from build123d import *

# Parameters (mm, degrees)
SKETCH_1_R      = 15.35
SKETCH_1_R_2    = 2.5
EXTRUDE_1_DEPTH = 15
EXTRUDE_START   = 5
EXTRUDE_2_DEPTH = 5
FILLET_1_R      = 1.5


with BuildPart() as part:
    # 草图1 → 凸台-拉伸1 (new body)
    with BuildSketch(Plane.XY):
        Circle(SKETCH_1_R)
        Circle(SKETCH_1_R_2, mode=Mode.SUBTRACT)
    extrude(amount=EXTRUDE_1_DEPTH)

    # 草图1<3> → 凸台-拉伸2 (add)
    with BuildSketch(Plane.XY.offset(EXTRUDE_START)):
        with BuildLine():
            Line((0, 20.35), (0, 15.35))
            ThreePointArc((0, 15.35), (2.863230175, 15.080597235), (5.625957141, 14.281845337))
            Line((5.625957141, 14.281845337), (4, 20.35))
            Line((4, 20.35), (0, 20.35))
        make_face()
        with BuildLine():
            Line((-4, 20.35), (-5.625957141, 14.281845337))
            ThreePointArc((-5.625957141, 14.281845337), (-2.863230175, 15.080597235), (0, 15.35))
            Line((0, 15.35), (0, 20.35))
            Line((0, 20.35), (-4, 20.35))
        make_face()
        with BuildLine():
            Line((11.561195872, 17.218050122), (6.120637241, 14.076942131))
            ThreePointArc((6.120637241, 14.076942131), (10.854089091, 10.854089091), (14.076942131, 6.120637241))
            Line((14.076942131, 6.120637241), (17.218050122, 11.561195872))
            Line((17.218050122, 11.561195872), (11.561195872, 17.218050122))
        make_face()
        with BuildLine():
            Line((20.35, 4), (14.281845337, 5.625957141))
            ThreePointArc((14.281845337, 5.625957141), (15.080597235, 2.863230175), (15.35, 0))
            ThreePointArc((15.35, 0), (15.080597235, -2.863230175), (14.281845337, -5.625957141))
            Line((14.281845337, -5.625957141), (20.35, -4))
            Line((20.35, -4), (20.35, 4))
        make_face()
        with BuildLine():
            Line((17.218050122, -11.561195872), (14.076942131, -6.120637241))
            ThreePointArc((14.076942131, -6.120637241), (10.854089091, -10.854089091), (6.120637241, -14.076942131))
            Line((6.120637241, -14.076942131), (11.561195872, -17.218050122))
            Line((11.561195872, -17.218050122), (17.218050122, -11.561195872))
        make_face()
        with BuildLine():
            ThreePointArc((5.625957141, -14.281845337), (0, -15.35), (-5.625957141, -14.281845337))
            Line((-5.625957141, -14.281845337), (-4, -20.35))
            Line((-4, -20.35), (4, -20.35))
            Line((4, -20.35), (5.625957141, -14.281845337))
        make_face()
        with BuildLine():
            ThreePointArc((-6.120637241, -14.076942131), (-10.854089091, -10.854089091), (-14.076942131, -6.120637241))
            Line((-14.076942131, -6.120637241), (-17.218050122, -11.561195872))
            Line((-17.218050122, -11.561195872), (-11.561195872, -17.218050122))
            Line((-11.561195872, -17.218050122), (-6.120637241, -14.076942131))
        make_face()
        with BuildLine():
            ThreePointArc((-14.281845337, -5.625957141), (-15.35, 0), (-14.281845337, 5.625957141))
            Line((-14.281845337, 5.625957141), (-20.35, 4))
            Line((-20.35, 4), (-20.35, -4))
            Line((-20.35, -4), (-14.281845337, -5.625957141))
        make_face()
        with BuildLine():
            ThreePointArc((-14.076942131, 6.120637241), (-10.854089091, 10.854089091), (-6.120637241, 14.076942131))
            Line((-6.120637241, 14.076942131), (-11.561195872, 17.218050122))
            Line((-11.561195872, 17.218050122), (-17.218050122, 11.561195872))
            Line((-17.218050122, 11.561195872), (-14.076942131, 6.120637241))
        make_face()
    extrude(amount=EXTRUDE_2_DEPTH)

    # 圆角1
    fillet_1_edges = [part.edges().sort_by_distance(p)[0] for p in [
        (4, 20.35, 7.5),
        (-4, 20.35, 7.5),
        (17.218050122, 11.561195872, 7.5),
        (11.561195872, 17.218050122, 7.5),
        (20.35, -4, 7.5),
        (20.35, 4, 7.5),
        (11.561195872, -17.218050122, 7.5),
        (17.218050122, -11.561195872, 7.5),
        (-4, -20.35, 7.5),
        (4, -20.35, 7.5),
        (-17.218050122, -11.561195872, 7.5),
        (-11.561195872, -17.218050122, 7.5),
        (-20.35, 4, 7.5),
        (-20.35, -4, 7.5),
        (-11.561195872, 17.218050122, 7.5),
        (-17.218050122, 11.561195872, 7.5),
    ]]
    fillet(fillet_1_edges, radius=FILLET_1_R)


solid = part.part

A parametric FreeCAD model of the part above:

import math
import FreeCAD as App
import Part
import Sketcher

V = App.Vector
Q = App.Units.Quantity


def edges_at(feature, points):
    """Names of the edges that pass closest to the given points."""
    edges = feature.Shape.Edges
    near = lambda p: min(range(len(edges)), key=lambda i: edges[i].distToShape(Part.Vertex(*p))[0])
    return sorted({f"Edge{near(p) + 1}" for p in points})

doc = App.newDocument("Part")
params = doc.addObject("Spreadsheet::Sheet", "Params")
for row, (alias, value) in enumerate([
    ("sketch1_diameter", "5 mm"),
    ("sketch1_diameter2", "30.7 mm"),
    ("pad1_length", "15 mm"),
    ("sketch2_width", "8 mm"),
    ("sketch2_radius", "15.35 mm"),
    ("sketch2_length", "8 mm"),
    ("pad2_length", "5 mm"),
    ("fillet_radius", "1.5 mm"),
], start=1):
    params.set(f"A{row}", alias)
    params.set(f"B{row}", "=" + value)
    params.setAlias(f"B{row}", alias)

body = doc.addObject("PartDesign::Body", "Body")

# Sketch on XY plane
sketch1 = body.newObject("Sketcher::SketchObject", "Sketch")
sketch1.AttachmentSupport = (doc.getObject("XY_Plane"), [""])
sketch1.MapMode = "FlatFace"
sketch1.addGeometry([
    Part.Circle(V(0, 0, 0), V(0, 0, 1), 15.3),
    Part.Circle(V(0, 0, 0), V(0, 0, 1), 2.5),
], False)
sketch1.addConstraint([
    Sketcher.Constraint("Coincident", 0, 3, -1, 1),
    Sketcher.Constraint("Coincident", 1, 3, -1, 1),
    Sketcher.Constraint("Diameter", 1, 5.0),
    Sketcher.Constraint("Diameter", 0, 30.7),
])
sketch1.setExpression("Constraints[2]", "Params.sketch1_diameter")
sketch1.setExpression("Constraints[3]", "Params.sketch1_diameter2")
pad1 = body.newObject("PartDesign::Pad", "Pad")
pad1.Profile = sketch1
pad1.setExpression("Length", "Params.pad1_length")

# Sketch on XY plane
sketch2 = body.newObject("Sketcher::SketchObject", "Sketch001")
sketch2.AttachmentSupport = (doc.getObject("XY_Plane"), [""])
sketch2.MapMode = "FlatFace"
sketch2.AttachmentOffset = App.Placement(V(0, 0, 5), App.Rotation())
sketch2.addGeometry([
    Part.ArcOfCircle(Part.Circle(V(0, 0, 0), V(0, 0, 1), 15), math.radians(68), math.radians(90)),  # 0
    Part.LineSegment(V(6, 14, 0), V(4, 20, 0)),  # 1
    Part.LineSegment(V(4, 20, 0), V(-4, 20, 0)),  # 2
    Part.LineSegment(V(-4, 20, 0), V(-6, 14, 0)),  # 3
    Part.ArcOfCircle(Part.Circle(V(0, 0, 0), V(0, 0, 1), 15), math.radians(90), math.radians(112)),  # 4
    Part.LineSegment(V(12, 17, 0), V(6, 14, 0)),  # 5
    Part.ArcOfCircle(Part.Circle(V(0, 0, 0), V(0, 0, 1), 15), math.radians(23), math.radians(67)),  # 6
    Part.LineSegment(V(14, 6, 0), V(17, 12, 0)),  # 7
    Part.LineSegment(V(17, 12, 0), V(12, 17, 0)),  # 8
    Part.LineSegment(V(20, 4, 0), V(14, 6, 0)),  # 9
    Part.ArcOfCircle(Part.Circle(V(0, 0, 0), V(0, 0, 1), 15), math.radians(0), math.radians(22)),  # 10
    Part.ArcOfCircle(Part.Circle(V(0, 0, 0), V(0, 0, 1), 15), math.radians(-22), math.radians(0)),  # 11
    Part.LineSegment(V(14, -6, 0), V(20, -4, 0)),  # 12
    Part.LineSegment(V(20, -4, 0), V(20, 4, 0)),  # 13
    Part.LineSegment(V(17, -12, 0), V(14, -6, 0)),  # 14
    Part.ArcOfCircle(Part.Circle(V(0, 0, 0), V(0, 0, 1), 15), math.radians(-67), math.radians(-23)),  # 15
    Part.LineSegment(V(6, -14, 0), V(12, -17, 0)),  # 16
    Part.LineSegment(V(12, -17, 0), V(17, -12, 0)),  # 17
    Part.ArcOfCircle(Part.Circle(V(0, 0, 0), V(0, 0, 1), 15), math.radians(-112), math.radians(-68)),  # 18
    Part.LineSegment(V(-6, -14, 0), V(-4, -20, 0)),  # 19
    Part.LineSegment(V(-4, -20, 0), V(4, -20, 0)),  # 20
    Part.LineSegment(V(4, -20, 0), V(6, -14, 0)),  # 21
    Part.ArcOfCircle(Part.Circle(V(0, 0, 0), V(0, 0, 1), 15), math.radians(-157), math.radians(-113)),  # 22
    Part.LineSegment(V(-14, -6, 0), V(-17, -12, 0)),  # 23
    Part.LineSegment(V(-17, -12, 0), V(-12, -17, 0)),  # 24
    Part.LineSegment(V(-12, -17, 0), V(-6, -14, 0)),  # 25
    Part.ArcOfCircle(Part.Circle(V(0, 0, 0), V(0, 0, 1), 15), math.radians(158), math.radians(202)),  # 26
    Part.LineSegment(V(-14, 6, 0), V(-20, 4, 0)),  # 27
    Part.LineSegment(V(-20, 4, 0), V(-20, -4, 0)),  # 28
    Part.LineSegment(V(-20, -4, 0), V(-14, -6, 0)),  # 29
    Part.ArcOfCircle(Part.Circle(V(0, 0, 0), V(0, 0, 1), 15), math.radians(113), math.radians(157)),  # 30
    Part.LineSegment(V(-6, 14, 0), V(-12, 17, 0)),  # 31
    Part.LineSegment(V(-12, 17, 0), V(-17, 12, 0)),  # 32
    Part.LineSegment(V(-17, 12, 0), V(-14, 6, 0)),  # 33
], False)
sketch2.addConstraint([
    Sketcher.Constraint("Coincident", 0, 1, 1, 1),
    Sketcher.Constraint("Coincident", 1, 2, 2, 1),
    Sketcher.Constraint("Coincident", 2, 2, 3, 1),
    Sketcher.Constraint("Coincident", 3, 2, 4, 2),
    Sketcher.Constraint("Tangent", 4, 1, 0, 2),
    Sketcher.Constraint("Coincident", 5, 2, 6, 2),
    Sketcher.Constraint("Coincident", 6, 1, 7, 1),
    Sketcher.Constraint("Coincident", 7, 2, 8, 1),
    Sketcher.Constraint("Coincident", 8, 2, 5, 1),
    Sketcher.Constraint("Coincident", 9, 2, 10, 2),
    Sketcher.Constraint("Tangent", 10, 1, 11, 2),
    Sketcher.Constraint("Coincident", 11, 1, 12, 1),
    Sketcher.Constraint("Coincident", 12, 2, 13, 1),
    Sketcher.Constraint("Coincident", 13, 2, 9, 1),
    Sketcher.Constraint("Coincident", 14, 2, 15, 2),
    Sketcher.Constraint("Coincident", 15, 1, 16, 1),
    Sketcher.Constraint("Coincident", 16, 2, 17, 1),
    Sketcher.Constraint("Coincident", 17, 2, 14, 1),
    Sketcher.Constraint("Coincident", 18, 1, 19, 1),
    Sketcher.Constraint("Coincident", 19, 2, 20, 1),
    Sketcher.Constraint("Coincident", 20, 2, 21, 1),
    Sketcher.Constraint("Coincident", 21, 2, 18, 2),
    Sketcher.Constraint("Coincident", 22, 1, 23, 1),
    Sketcher.Constraint("Coincident", 23, 2, 24, 1),
    Sketcher.Constraint("Coincident", 24, 2, 25, 1),
    Sketcher.Constraint("Coincident", 25, 2, 22, 2),
    Sketcher.Constraint("Coincident", 26, 1, 27, 1),
    Sketcher.Constraint("Coincident", 27, 2, 28, 1),
    Sketcher.Constraint("Coincident", 28, 2, 29, 1),
    Sketcher.Constraint("Coincident", 29, 2, 26, 2),
    Sketcher.Constraint("Coincident", 30, 1, 31, 1),
    Sketcher.Constraint("Coincident", 31, 2, 32, 1),
    Sketcher.Constraint("Coincident", 32, 2, 33, 1),
    Sketcher.Constraint("Coincident", 33, 2, 30, 2),
    Sketcher.Constraint("Horizontal", 2),
    Sketcher.Constraint("Vertical", 13),
    Sketcher.Constraint("Horizontal", 20),
    Sketcher.Constraint("Vertical", 28),
    Sketcher.Constraint("Coincident", 0, 3, -1, 1),
    Sketcher.Constraint("Coincident", 6, 3, -1, 1),
    Sketcher.Constraint("Coincident", 10, 3, -1, 1),
    Sketcher.Constraint("Coincident", 15, 3, -1, 1),
    Sketcher.Constraint("Coincident", 18, 3, -1, 1),
    Sketcher.Constraint("Coincident", 22, 3, -1, 1),
    Sketcher.Constraint("Coincident", 26, 3, -1, 1),
    Sketcher.Constraint("Coincident", 30, 3, -1, 1),
    Sketcher.Constraint("Equal", 0, 4),
    Sketcher.Constraint("Equal", 4, 6),
    Sketcher.Constraint("Equal", 6, 10),
    Sketcher.Constraint("Equal", 10, 11),
    Sketcher.Constraint("Equal", 11, 15),
    Sketcher.Constraint("Equal", 15, 18),
    Sketcher.Constraint("Equal", 18, 22),
    Sketcher.Constraint("Equal", 22, 26),
    Sketcher.Constraint("Equal", 26, 30),
    Sketcher.Constraint("Symmetric", 1, 2, 19, 2, -1, 1),
    Sketcher.Constraint("Symmetric", 7, 2, 23, 2, -1, 1),
    Sketcher.Constraint("Symmetric", 8, 2, 24, 2, -1, 1),
    Sketcher.Constraint("Symmetric", 12, 2, 27, 2, -1, 1),
    Sketcher.Constraint("Symmetric", 16, 2, 31, 2, -1, 1),
    Sketcher.Constraint("Symmetric", 17, 2, 32, 2, -1, 1),
    Sketcher.Constraint("Symmetric", 17, 2, 23, 2, -2),
    Sketcher.Constraint("Symmetric", 16, 2, 24, 2, -2),
    Sketcher.Constraint("PointOnObject", 4, 1, -2),
    Sketcher.Constraint("PointOnObject", 10, 1, -1),
    Sketcher.Constraint("Perpendicular", 3, 9),
    Sketcher.Constraint("Perpendicular", 1, 12),
    Sketcher.Constraint("Perpendicular", 5, 14),
    Sketcher.Constraint("Perpendicular", 7, 16),
    Sketcher.Constraint("Perpendicular", 8, 17),
    Sketcher.Constraint("Perpendicular", 12, 19),
    Sketcher.Constraint("Perpendicular", 9, 21),
    Sketcher.Constraint("Perpendicular", 16, 23),
    Sketcher.Constraint("Perpendicular", 14, 25),
    Sketcher.Constraint("Perpendicular", 19, 27),
    Sketcher.Constraint("Perpendicular", 21, 29),
    Sketcher.Constraint("Perpendicular", 23, 31),
    Sketcher.Constraint("Perpendicular", 25, 33),
    Sketcher.Constraint("Horizontal", 0, 1, 3, 2),
    Sketcher.Constraint("Horizontal", 18, 1, 21, 2),
    Sketcher.Constraint("Horizontal", 14, 2, 22, 1),
    Sketcher.Constraint("Horizontal", 9, 2, 26, 1),
    Sketcher.Constraint("Horizontal", 13, 2, 27, 2),
    Sketcher.Constraint("Horizontal", 12, 2, 28, 2),
    Sketcher.Constraint("Equal", 20, 13),
    Sketcher.Constraint("Equal", 3, 5),
    Sketcher.Constraint("Equal", 5, 7),
    Sketcher.Constraint("Equal", 7, 9),
    Sketcher.Constraint("DistanceX", 2, 2, 2, 1, 8.0),
    Sketcher.Constraint("Angle", 1, Q("105 deg")),
    Sketcher.Constraint("Angle", 5, Q("-150 deg")),
    Sketcher.Constraint("Radius", 0, 15.35),
    Sketcher.Constraint("Distance", 8, 8.0),
    Sketcher.Constraint("DistanceY", 4, 1, 1, 2, 5.0),
])
sketch2.setExpression("Constraints[88]", "Params.sketch2_width")
sketch2.setExpression("Constraints[91]", "Params.sketch2_radius")
sketch2.setExpression("Constraints[92]", "Params.sketch2_length")
pad2 = body.newObject("PartDesign::Pad", "Pad001")
pad2.Profile = sketch2
pad2.setExpression("Length", "Params.pad2_length")
doc.recompute()

fillet = body.newObject("PartDesign::Fillet", "Fillet")
fillet.Base = (pad2, edges_at(pad2, [
    (4, 20.35, 7.5),
    (-4, 20.35, 7.5),
    (17.218, 11.561, 7.5),
    (11.561, 17.218, 7.5),
    (20.35, -4, 7.5),
    (20.35, 4, 7.5),
    (11.561, -17.218, 7.5),
    (17.218, -11.561, 7.5),
    (-4, -20.35, 7.5),
    (4, -20.35, 7.5),
    (-17.218, -11.561, 7.5),
    (-11.561, -17.218, 7.5),
    (-20.35, 4, 7.5),
    (-20.35, -4, 7.5),
    (-11.561, 17.218, 7.5),
    (-17.218, 11.561, 7.5),
]))
fillet.setExpression("Radius", "Params.fillet_radius")

doc.recompute()
